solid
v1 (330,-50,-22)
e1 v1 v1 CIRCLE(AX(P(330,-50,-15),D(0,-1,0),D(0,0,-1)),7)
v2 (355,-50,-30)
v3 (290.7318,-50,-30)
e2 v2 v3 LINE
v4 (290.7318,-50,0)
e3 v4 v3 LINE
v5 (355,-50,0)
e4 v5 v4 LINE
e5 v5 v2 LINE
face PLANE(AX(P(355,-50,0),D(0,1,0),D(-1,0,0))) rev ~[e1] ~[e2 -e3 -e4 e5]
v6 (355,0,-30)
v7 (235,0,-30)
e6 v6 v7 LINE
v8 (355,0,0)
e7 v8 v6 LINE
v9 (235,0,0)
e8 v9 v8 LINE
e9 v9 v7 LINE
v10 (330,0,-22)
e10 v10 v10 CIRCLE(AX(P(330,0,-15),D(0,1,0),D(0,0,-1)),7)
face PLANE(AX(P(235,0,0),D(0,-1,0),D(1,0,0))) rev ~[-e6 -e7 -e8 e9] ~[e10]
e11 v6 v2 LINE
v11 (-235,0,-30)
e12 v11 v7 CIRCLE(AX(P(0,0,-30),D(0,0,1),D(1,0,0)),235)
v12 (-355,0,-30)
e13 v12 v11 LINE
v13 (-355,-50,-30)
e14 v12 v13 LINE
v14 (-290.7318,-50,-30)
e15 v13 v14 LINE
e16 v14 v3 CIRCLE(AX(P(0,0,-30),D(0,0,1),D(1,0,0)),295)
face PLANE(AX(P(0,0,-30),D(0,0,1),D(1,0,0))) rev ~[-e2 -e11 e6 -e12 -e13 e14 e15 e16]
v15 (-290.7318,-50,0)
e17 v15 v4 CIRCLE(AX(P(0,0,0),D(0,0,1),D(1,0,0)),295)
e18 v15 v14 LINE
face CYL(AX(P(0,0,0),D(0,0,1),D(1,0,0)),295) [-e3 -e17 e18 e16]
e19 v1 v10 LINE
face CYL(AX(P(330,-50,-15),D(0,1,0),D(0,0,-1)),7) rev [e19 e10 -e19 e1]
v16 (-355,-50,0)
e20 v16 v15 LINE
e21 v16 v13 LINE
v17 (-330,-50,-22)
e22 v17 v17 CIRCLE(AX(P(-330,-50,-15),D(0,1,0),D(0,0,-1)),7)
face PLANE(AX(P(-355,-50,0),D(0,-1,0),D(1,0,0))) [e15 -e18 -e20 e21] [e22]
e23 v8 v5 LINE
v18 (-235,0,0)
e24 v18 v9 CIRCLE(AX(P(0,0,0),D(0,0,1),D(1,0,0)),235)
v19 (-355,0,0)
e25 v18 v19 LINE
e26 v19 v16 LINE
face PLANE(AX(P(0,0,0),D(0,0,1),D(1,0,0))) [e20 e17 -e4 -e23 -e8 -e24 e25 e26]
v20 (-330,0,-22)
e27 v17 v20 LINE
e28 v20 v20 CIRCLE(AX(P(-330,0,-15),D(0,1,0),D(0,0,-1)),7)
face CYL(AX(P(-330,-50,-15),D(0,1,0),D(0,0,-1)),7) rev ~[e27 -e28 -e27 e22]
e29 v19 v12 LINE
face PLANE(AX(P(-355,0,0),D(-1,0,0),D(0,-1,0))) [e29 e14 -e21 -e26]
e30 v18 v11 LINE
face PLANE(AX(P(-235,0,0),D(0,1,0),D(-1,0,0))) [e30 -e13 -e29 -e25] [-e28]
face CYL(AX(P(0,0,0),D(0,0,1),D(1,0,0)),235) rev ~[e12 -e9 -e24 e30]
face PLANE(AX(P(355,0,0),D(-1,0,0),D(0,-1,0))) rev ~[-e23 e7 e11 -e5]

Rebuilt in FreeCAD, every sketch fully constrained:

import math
import FreeCAD as App
import Part
import Sketcher

doc = App.newDocument("Part")
body = doc.addObject("PartDesign::Body", "Body")

sketch1 = body.newObject("Sketcher::SketchObject", "Sketch")
sketch1.AttachmentSupport = (doc.getObject("XY_Plane"), [""])
sketch1.MapMode = "FlatFace"
sketch1.addGeometry([
    Part.ArcOfCircle(Part.Circle(App.Vector(0, 0, 0), App.Vector(0, 0, 1), 235), math.radians(180), math.radians(360)),
    Part.LineSegment(App.Vector(-235, 0, 0), App.Vector(-355, 0, 0)),
    Part.LineSegment(App.Vector(-355, 0, 0), App.Vector(-355, -50, 0)),
    Part.LineSegment(App.Vector(-355, -50, 0), App.Vector(-290.7318, -50, 0)),
    Part.ArcOfCircle(Part.Circle(App.Vector(0, 0, 0), App.Vector(0, 0, 1), 295), math.radians(-170.241742), math.radians(-9.758258)),
    Part.LineSegment(App.Vector(290.7318, -50, 0), App.Vector(355, -50, 0)),
    Part.LineSegment(App.Vector(355, -50, 0), App.Vector(355, 0, 0)),
    Part.LineSegment(App.Vector(355, 0, 0), App.Vector(235, 0, 0)),
], False)
sketch1.addConstraint([
    Sketcher.Constraint("Coincident", 0, 1, 1, 1),
    Sketcher.Constraint("Coincident", 1, 2, 2, 1),
    Sketcher.Constraint("Coincident", 2, 2, 3, 1),
    Sketcher.Constraint("Coincident", 3, 2, 4, 1),
    Sketcher.Constraint("Coincident", 4, 2, 5, 1),
    Sketcher.Constraint("Coincident", 5, 2, 6, 1),
    Sketcher.Constraint("Coincident", 6, 2, 7, 1),
    Sketcher.Constraint("Coincident", 7, 2, 0, 2),
    Sketcher.Constraint("Horizontal", 1),
    Sketcher.Constraint("Vertical", 2),
    Sketcher.Constraint("Horizontal", 3),
    Sketcher.Constraint("Horizontal", 5),
    Sketcher.Constraint("Vertical", 6),
    Sketcher.Constraint("Horizontal", 7),
    Sketcher.Constraint("Coincident", 0, 3, -1, 1),
    Sketcher.Constraint("Coincident", 4, 3, -1, 1),
    Sketcher.Constraint("Symmetric", 1, 2, 6, 2, -1, 1),
    Sketcher.Constraint("PointOnObject", 1, 2, -1),
    Sketcher.Constraint("Horizontal", 3, 2, 4, 2),
    Sketcher.Constraint("DistanceY", 2, 2, 2, 1, 50.0),
    Sketcher.Constraint("Radius", 0, 235.0),
    Sketcher.Constraint("Radius", 4, 295.0),
    Sketcher.Constraint("DistanceX", 1, 2, 1, 1, 120.0),
])
pad1 = body.newObject("PartDesign::Pad", "Pad")
pad1.Profile = sketch1
pad1.Length = 30
pad1.Reversed = True

sketch2 = body.newObject("Sketcher::SketchObject", "Sketch001")
sketch2.AttachmentSupport = (doc.getObject("XZ_Plane"), [""])
sketch2.MapMode = "FlatFace"
sketch2.AttachmentOffset = App.Placement(App.Vector(0, 0, 50), App.Rotation())
sketch2.addGeometry(Part.Circle(App.Vector(-330, -15, 0), App.Vector(0, 0, 1), 7), False)
sketch2.addConstraint([
    Sketcher.Constraint("Diameter", 0, 14.0),
    Sketcher.Constraint("DistanceX", 0, 3, -1, 1, 330.0),
    Sketcher.Constraint("DistanceY", 0, 3, -1, 1, 15.0),
])
doc.recompute()
hole = body.newObject("PartDesign::Hole", "Hole")
hole.Profile = sketch2
hole.ThreadType = "None"
hole.Diameter = 14
hole.DepthType = "ThroughAll"
doc.recompute()

mirrored = body.newObject("PartDesign::Mirrored", "Mirrored")
mirrored.Originals = [hole]
mirrored.MirrorPlane = (doc.getObject("YZ_Plane"), [""])
body.Tip = mirrored

doc.recompute()
